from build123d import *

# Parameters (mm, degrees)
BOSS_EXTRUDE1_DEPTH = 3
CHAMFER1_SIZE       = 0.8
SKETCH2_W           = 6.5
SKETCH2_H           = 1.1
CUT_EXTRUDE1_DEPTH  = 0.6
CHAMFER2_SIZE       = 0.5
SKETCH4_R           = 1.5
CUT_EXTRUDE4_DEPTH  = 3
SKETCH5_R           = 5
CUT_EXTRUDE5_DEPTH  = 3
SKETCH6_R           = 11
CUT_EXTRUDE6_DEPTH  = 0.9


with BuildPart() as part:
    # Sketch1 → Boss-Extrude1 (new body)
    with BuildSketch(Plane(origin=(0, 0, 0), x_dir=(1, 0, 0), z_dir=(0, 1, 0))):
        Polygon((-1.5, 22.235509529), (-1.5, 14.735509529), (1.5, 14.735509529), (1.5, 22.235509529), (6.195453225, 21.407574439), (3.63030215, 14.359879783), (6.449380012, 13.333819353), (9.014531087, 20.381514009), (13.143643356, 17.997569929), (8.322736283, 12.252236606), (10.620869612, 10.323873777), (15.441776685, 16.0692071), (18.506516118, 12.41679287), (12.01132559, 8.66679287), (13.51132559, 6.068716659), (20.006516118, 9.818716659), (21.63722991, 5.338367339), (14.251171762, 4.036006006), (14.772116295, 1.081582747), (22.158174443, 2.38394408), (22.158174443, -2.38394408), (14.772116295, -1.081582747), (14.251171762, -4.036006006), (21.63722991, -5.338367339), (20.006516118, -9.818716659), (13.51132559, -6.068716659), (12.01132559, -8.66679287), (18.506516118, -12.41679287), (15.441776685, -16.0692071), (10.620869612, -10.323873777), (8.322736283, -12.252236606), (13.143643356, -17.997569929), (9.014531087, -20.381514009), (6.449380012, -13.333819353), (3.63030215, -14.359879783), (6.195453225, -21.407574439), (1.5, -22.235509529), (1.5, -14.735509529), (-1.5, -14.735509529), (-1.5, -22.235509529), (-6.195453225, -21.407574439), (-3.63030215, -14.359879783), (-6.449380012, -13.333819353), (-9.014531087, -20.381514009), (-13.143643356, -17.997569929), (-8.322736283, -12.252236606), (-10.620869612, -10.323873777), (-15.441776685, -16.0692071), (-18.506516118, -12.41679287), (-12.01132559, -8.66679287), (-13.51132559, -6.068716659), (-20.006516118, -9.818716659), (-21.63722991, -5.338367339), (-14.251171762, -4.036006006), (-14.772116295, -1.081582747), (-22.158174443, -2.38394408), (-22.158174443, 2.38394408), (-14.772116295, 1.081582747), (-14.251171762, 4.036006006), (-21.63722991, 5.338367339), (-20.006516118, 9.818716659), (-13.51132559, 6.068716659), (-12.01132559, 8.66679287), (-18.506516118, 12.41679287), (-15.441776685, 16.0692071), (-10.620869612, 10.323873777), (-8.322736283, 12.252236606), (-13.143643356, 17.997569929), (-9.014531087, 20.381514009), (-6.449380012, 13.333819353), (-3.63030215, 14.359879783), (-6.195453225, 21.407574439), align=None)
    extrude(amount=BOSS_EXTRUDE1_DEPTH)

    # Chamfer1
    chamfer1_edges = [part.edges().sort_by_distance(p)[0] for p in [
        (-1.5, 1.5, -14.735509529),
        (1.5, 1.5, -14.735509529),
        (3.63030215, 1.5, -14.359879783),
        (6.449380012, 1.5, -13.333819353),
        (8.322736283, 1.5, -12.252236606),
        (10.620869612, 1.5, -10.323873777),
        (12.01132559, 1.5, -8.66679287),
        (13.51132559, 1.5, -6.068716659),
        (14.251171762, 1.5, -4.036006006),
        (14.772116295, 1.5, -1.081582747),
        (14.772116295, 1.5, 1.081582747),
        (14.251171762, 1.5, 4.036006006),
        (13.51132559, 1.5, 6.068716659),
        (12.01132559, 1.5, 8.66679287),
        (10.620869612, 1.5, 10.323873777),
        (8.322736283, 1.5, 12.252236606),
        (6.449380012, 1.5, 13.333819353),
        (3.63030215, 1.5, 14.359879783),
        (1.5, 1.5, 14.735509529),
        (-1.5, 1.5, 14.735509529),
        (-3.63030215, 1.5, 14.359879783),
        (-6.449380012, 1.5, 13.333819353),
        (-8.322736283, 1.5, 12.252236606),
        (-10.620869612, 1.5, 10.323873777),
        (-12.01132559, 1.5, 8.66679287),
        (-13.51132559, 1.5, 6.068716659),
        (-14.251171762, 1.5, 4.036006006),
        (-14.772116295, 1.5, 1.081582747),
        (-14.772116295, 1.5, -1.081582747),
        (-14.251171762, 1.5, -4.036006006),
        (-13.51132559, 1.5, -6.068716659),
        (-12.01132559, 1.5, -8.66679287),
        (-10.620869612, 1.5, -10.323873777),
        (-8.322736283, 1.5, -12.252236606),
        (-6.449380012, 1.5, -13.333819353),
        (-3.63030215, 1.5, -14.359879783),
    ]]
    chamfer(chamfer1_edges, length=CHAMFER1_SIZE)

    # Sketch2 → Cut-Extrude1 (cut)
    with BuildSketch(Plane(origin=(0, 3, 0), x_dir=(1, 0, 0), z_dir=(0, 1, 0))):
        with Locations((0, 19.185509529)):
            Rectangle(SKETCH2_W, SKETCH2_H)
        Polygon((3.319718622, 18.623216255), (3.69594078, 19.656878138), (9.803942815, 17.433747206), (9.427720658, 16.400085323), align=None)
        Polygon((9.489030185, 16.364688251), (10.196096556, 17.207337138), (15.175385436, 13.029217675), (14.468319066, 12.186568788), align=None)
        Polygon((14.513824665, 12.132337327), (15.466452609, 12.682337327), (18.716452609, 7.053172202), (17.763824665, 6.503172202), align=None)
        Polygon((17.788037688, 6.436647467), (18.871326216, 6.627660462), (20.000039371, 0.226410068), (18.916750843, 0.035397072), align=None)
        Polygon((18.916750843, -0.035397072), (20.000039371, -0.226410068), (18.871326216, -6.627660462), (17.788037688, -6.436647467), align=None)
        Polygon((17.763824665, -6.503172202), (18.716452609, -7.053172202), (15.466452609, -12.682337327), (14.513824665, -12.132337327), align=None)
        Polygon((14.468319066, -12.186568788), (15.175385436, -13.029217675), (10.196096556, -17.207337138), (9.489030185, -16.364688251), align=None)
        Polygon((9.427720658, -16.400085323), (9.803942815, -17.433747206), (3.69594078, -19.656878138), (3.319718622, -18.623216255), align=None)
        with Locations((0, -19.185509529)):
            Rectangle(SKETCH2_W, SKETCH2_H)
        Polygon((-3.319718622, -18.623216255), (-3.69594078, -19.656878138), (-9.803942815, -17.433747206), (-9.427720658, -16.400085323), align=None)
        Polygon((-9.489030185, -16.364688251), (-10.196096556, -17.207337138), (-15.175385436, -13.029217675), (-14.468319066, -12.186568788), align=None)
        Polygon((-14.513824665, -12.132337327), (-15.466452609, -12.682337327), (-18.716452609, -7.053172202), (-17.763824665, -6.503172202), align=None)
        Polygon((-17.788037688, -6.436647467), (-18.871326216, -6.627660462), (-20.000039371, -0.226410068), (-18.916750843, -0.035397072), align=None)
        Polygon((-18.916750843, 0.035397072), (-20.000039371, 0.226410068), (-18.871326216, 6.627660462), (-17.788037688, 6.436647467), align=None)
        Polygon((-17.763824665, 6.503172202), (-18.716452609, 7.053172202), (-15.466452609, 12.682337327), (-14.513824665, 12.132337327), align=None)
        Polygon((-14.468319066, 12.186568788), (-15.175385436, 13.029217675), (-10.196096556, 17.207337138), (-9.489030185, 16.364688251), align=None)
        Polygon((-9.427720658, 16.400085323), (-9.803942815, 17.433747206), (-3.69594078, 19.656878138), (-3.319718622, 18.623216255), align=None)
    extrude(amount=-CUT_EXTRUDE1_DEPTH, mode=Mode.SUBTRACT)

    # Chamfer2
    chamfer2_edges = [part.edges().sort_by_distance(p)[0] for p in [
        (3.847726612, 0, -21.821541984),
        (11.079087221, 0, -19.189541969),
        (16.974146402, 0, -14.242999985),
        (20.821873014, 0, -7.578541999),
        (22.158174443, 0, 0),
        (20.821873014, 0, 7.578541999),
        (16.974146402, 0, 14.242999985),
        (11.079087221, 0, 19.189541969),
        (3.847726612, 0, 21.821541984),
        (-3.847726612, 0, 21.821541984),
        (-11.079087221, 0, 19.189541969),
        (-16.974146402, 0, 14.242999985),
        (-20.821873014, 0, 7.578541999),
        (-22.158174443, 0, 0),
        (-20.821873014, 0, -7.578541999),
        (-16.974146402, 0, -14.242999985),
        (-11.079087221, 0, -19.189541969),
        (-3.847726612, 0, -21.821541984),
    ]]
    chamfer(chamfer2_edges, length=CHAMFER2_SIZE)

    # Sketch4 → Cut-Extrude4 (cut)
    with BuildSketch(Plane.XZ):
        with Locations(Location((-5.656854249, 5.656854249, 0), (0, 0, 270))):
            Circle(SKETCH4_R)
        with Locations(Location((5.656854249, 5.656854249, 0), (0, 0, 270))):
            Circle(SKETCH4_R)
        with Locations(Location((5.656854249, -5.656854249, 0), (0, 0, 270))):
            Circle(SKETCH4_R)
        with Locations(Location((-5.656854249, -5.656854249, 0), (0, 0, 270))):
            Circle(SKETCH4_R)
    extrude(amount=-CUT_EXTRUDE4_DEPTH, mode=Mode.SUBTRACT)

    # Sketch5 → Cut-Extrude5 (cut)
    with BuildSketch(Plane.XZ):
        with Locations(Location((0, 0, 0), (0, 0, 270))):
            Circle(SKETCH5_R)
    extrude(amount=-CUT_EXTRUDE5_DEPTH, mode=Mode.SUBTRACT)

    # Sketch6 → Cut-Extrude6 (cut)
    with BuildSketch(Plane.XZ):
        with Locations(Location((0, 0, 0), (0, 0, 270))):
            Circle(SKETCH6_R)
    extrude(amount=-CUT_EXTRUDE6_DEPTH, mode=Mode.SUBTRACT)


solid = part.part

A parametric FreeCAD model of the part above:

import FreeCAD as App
import Part
import Sketcher
Q = App.Units.Quantity


def edges_at(feature, points):
    """Names of the edges that pass closest to the given points."""
    edges = feature.Shape.Edges
    near = lambda p: min(range(len(edges)), key=lambda i: edges[i].distToShape(Part.Vertex(*p))[0])
    return sorted({f"Edge{near(p) + 1}" for p in points})

doc = App.newDocument("Part")
body = doc.addObject("PartDesign::Body", "Body")

# Sketch on XZ plane
sketch1 = body.newObject("Sketcher::SketchObject", "Sketch")
sketch1.AttachmentSupport = (doc.getObject("XZ_Plane"), [""])
sketch1.MapMode = "FlatFace"
sketch1.addGeometry(Part.LineSegment(App.Vector(-1.5, -14.73551, 0), App.Vector(-1.5, -22.23551, 0)), False)
sketch1.addGeometry(Part.LineSegment(App.Vector(-1.5, -22.23551, 0), App.Vector(-6.195453, -21.407574, 0)), False)
sketch1.addGeometry(Part.LineSegment(App.Vector(-6.195453, -21.407574, 0), App.Vector(-3.630302, -14.35988, 0)), False)
sketch1.addGeometry(Part.LineSegment(App.Vector(-3.630302, -14.35988, 0), App.Vector(-6.44938, -13.333819, 0)), False)
sketch1.addGeometry(Part.LineSegment(App.Vector(-6.44938, -13.333819, 0), App.Vector(-9.014531, -20.381514, 0)), False)
sketch1.addGeometry(Part.LineSegment(App.Vector(-9.014531, -20.381514, 0), App.Vector(-13.143643, -17.99757, 0)), False)
sketch1.addGeometry(Part.LineSegment(App.Vector(-13.143643, -17.99757, 0), App.Vector(-8.322736, -12.252237, 0)), False)
sketch1.addGeometry(Part.LineSegment(App.Vector(-8.322736, -12.252237, 0), App.Vector(-10.62087, -10.323874, 0)), False)
sketch1.addGeometry(Part.LineSegment(App.Vector(-10.62087, -10.323874, 0), App.Vector(-15.441777, -16.069207, 0)), False)
sketch1.addGeometry(Part.LineSegment(App.Vector(-15.441777, -16.069207, 0), App.Vector(-18.506516, -12.416793, 0)), False)
sketch1.addGeometry(Part.LineSegment(App.Vector(-18.506516, -12.416793, 0), App.Vector(-12.011326, -8.666793, 0)), False)
sketch1.addGeometry(Part.LineSegment(App.Vector(-12.011326, -8.666793, 0), App.Vector(-13.511326, -6.068717, 0)), False)
sketch1.addGeometry(Part.LineSegment(App.Vector(-13.511326, -6.068717, 0), App.Vector(-20.006516, -9.818717, 0)), False)
sketch1.addGeometry(Part.LineSegment(App.Vector(-20.006516, -9.818717, 0), App.Vector(-21.63723, -5.338367, 0)), False)
sketch1.addGeometry(Part.LineSegment(App.Vector(-21.63723, -5.338367, 0), App.Vector(-14.251172, -4.036006, 0)), False)
sketch1.addGeometry(Part.LineSegment(App.Vector(-14.251172, -4.036006, 0), App.Vector(-14.772116, -1.081583, 0)), False)
sketch1.addGeometry(Part.LineSegment(App.Vector(-14.772116, -1.081583, 0), App.Vector(-22.158174, -2.383944, 0)), False)
sketch1.addGeometry(Part.LineSegment(App.Vector(-22.158174, -2.383944, 0), App.Vector(-22.158174, 2.383944, 0)), False)
sketch1.addGeometry(Part.LineSegment(App.Vector(-22.158174, 2.383944, 0), App.Vector(-14.772116, 1.081583, 0)), False)
sketch1.addGeometry(Part.LineSegment(App.Vector(-14.772116, 1.081583, 0), App.Vector(-14.251172, 4.036006, 0)), False)
sketch1.addGeometry(Part.LineSegment(App.Vector(-14.251172, 4.036006, 0), App.Vector(-21.63723, 5.338367, 0)), False)
sketch1.addGeometry(Part.LineSegment(App.Vector(-21.63723, 5.338367, 0), App.Vector(-20.006516, 9.818717, 0)), False)
sketch1.addGeometry(Part.LineSegment(App.Vector(-20.006516, 9.818717, 0), App.Vector(-13.511326, 6.068717, 0)), False)
sketch1.addGeometry(Part.LineSegment(App.Vector(-13.511326, 6.068717, 0), App.Vector(-12.011326, 8.666793, 0)), False)
sketch1.addGeometry(Part.LineSegment(App.Vector(-12.011326, 8.666793, 0), App.Vector(-18.506516, 12.416793, 0)), False)
sketch1.addGeometry(Part.LineSegment(App.Vector(-18.506516, 12.416793, 0), App.Vector(-15.441777, 16.069207, 0)), False)
sketch1.addGeometry(Part.LineSegment(App.Vector(-15.441777, 16.069207, 0), App.Vector(-10.62087, 10.323874, 0)), False)
sketch1.addGeometry(Part.LineSegment(App.Vector(-10.62087, 10.323874, 0), App.Vector(-8.322736, 12.252237, 0)), False)
sketch1.addGeometry(Part.LineSegment(App.Vector(-8.322736, 12.252237, 0), App.Vector(-13.143643, 17.99757, 0)), False)
sketch1.addGeometry(Part.LineSegment(App.Vector(-13.143643, 17.99757, 0), App.Vector(-9.014531, 20.381514, 0)), False)
sketch1.addGeometry(Part.LineSegment(App.Vector(-9.014531, 20.381514, 0), App.Vector(-6.44938, 13.333819, 0)), False)
sketch1.addGeometry(Part.LineSegment(App.Vector(-6.44938, 13.333819, 0), App.Vector(-3.630302, 14.35988, 0)), False)
sketch1.addGeometry(Part.LineSegment(App.Vector(-3.630302, 14.35988, 0), App.Vector(-6.195453, 21.407574, 0)), False)
sketch1.addGeometry(Part.LineSegment(App.Vector(-6.195453, 21.407574, 0), App.Vector(-1.5, 22.23551, 0)), False)
sketch1.addGeometry(Part.LineSegment(App.Vector(-1.5, 22.23551, 0), App.Vector(-1.5, 14.73551, 0)), False)
sketch1.addGeometry(Part.LineSegment(App.Vector(-1.5, 14.73551, 0), App.Vector(1.5, 14.73551, 0)), False)
sketch1.addGeometry(Part.LineSegment(App.Vector(1.5, 14.73551, 0), App.Vector(1.5, 22.23551, 0)), False)
sketch1.addGeometry(Part.LineSegment(App.Vector(1.5, 22.23551, 0), App.Vector(6.195453, 21.407574, 0)), False)
sketch1.addGeometry(Part.LineSegment(App.Vector(6.195453, 21.407574, 0), App.Vector(3.630302, 14.35988, 0)), False)
sketch1.addGeometry(Part.LineSegment(App.Vector(3.630302, 14.35988, 0), App.Vector(6.44938, 13.333819, 0)), False)
sketch1.addGeometry(Part.LineSegment(App.Vector(6.44938, 13.333819, 0), App.Vector(9.014531, 20.381514, 0)), False)
sketch1.addGeometry(Part.LineSegment(App.Vector(9.014531, 20.381514, 0), App.Vector(13.143643, 17.99757, 0)), False)
sketch1.addGeometry(Part.LineSegment(App.Vector(13.143643, 17.99757, 0), App.Vector(8.322736, 12.252237, 0)), False)
sketch1.addGeometry(Part.LineSegment(App.Vector(8.322736, 12.252237, 0), App.Vector(10.62087, 10.323874, 0)), False)
sketch1.addGeometry(Part.LineSegment(App.Vector(10.62087, 10.323874, 0), App.Vector(15.441777, 16.069207, 0)), False)
sketch1.addGeometry(Part.LineSegment(App.Vector(15.441777, 16.069207, 0), App.Vector(18.506516, 12.416793, 0)), False)
sketch1.addGeometry(Part.LineSegment(App.Vector(18.506516, 12.416793, 0), App.Vector(12.011326, 8.666793, 0)), False)
sketch1.addGeometry(Part.LineSegment(App.Vector(12.011326, 8.666793, 0), App.Vector(13.511326, 6.068717, 0)), False)
sketch1.addGeometry(Part.LineSegment(App.Vector(13.511326, 6.068717, 0), App.Vector(20.006516, 9.818717, 0)), False)
sketch1.addGeometry(Part.LineSegment(App.Vector(20.006516, 9.818717, 0), App.Vector(21.63723, 5.338367, 0)), False)
sketch1.addGeometry(Part.LineSegment(App.Vector(21.63723, 5.338367, 0), App.Vector(14.251172, 4.036006, 0)), False)
sketch1.addGeometry(Part.LineSegment(App.Vector(14.251172, 4.036006, 0), App.Vector(14.772116, 1.081583, 0)), False)
sketch1.addGeometry(Part.LineSegment(App.Vector(14.772116, 1.081583, 0), App.Vector(22.158174, 2.383944, 0)), False)
sketch1.addGeometry(Part.LineSegment(App.Vector(22.158174, 2.383944, 0), App.Vector(22.158174, -2.383944, 0)), False)
sketch1.addGeometry(Part.LineSegment(App.Vector(22.158174, -2.383944, 0), App.Vector(14.772116, -1.081583, 0)), False)
sketch1.addGeometry(Part.LineSegment(App.Vector(14.772116, -1.081583, 0), App.Vector(14.251172, -4.036006, 0)), False)
sketch1.addGeometry(Part.LineSegment(App.Vector(14.251172, -4.036006, 0), App.Vector(21.63723, -5.338367, 0)), False)
sketch1.addGeometry(Part.LineSegment(App.Vector(21.63723, -5.338367, 0), App.Vector(20.006516, -9.818717, 0)), False)
sketch1.addGeometry(Part.LineSegment(App.Vector(20.006516, -9.818717, 0), App.Vector(13.511326, -6.068717, 0)), False)
sketch1.addGeometry(Part.LineSegment(App.Vector(13.511326, -6.068717, 0), App.Vector(12.011326, -8.666793, 0)), False)
sketch1.addGeometry(Part.LineSegment(App.Vector(12.011326, -8.666793, 0), App.Vector(18.506516, -12.416793, 0)), False)
sketch1.addGeometry(Part.LineSegment(App.Vector(18.506516, -12.416793, 0), App.Vector(15.441777, -16.069207, 0)), False)
sketch1.addGeometry(Part.LineSegment(App.Vector(15.441777, -16.069207, 0), App.Vector(10.62087, -10.323874, 0)), False)
sketch1.addGeometry(Part.LineSegment(App.Vector(10.62087, -10.323874, 0), App.Vector(8.322736, -12.252237, 0)), False)
sketch1.addGeometry(Part.LineSegment(App.Vector(8.322736, -12.252237, 0), App.Vector(13.143643, -17.99757, 0)), False)
sketch1.addGeometry(Part.LineSegment(App.Vector(13.143643, -17.99757, 0), App.Vector(9.014531, -20.381514, 0)), False)
sketch1.addGeometry(Part.LineSegment(App.Vector(9.014531, -20.381514, 0), App.Vector(6.44938, -13.333819, 0)), False)
sketch1.addGeometry(Part.LineSegment(App.Vector(6.44938, -13.333819, 0), App.Vector(3.630302, -14.35988, 0)), False)
sketch1.addGeometry(Part.LineSegment(App.Vector(3.630302, -14.35988, 0), App.Vector(6.195453, -21.407574, 0)), False)
sketch1.addGeometry(Part.LineSegment(App.Vector(6.195453, -21.407574, 0), App.Vector(1.5, -22.23551, 0)), False)
sketch1.addGeometry(Part.LineSegment(App.Vector(1.5, -22.23551, 0), App.Vector(1.5, -14.73551, 0)), False)
sketch1.addGeometry(Part.LineSegment(App.Vector(1.5, -14.73551, 0), App.Vector(-1.5, -14.73551, 0)), False)
sketch1.addConstraint(Sketcher.Constraint("Coincident", 0, 2, 1, 1))
sketch1.addConstraint(Sketcher.Constraint("Coincident", 1, 2, 2, 1))
sketch1.addConstraint(Sketcher.Constraint("Coincident", 2, 2, 3, 1))
sketch1.addConstraint(Sketcher.Constraint("Coincident", 3, 2, 4, 1))
sketch1.addConstraint(Sketcher.Constraint("Coincident", 4, 2, 5, 1))
sketch1.addConstraint(Sketcher.Constraint("Coincident", 5, 2, 6, 1))
sketch1.addConstraint(Sketcher.Constraint("Coincident", 6, 2, 7, 1))
sketch1.addConstraint(Sketcher.Constraint("Coincident", 7, 2, 8, 1))
sketch1.addConstraint(Sketcher.Constraint("Coincident", 8, 2, 9, 1))
sketch1.addConstraint(Sketcher.Constraint("Coincident", 9, 2, 10, 1))
sketch1.addConstraint(Sketcher.Constraint("Coincident", 10, 2, 11, 1))
sketch1.addConstraint(Sketcher.Constraint("Coincident", 11, 2, 12, 1))
sketch1.addConstraint(Sketcher.Constraint("Coincident", 12, 2, 13, 1))
sketch1.addConstraint(Sketcher.Constraint("Coincident", 13, 2, 14, 1))
sketch1.addConstraint(Sketcher.Constraint("Coincident", 14, 2, 15, 1))
sketch1.addConstraint(Sketcher.Constraint("Coincident", 15, 2, 16, 1))
sketch1.addConstraint(Sketcher.Constraint("Coincident", 16, 2, 17, 1))
sketch1.addConstraint(Sketcher.Constraint("Coincident", 17, 2, 18, 1))
sketch1.addConstraint(Sketcher.Constraint("Coincident", 18, 2, 19, 1))
sketch1.addConstraint(Sketcher.Constraint("Coincident", 19, 2, 20, 1))
sketch1.addConstraint(Sketcher.Constraint("Coincident", 20, 2, 21, 1))
sketch1.addConstraint(Sketcher.Constraint("Coincident", 21, 2, 22, 1))
sketch1.addConstraint(Sketcher.Constraint("Coincident", 22, 2, 23, 1))
sketch1.addConstraint(Sketcher.Constraint("Coincident", 23, 2, 24, 1))
sketch1.addConstraint(Sketcher.Constraint("Coincident", 24, 2, 25, 1))
sketch1.addConstraint(Sketcher.Constraint("Coincident", 25, 2, 26, 1))
sketch1.addConstraint(Sketcher.Constraint("Coincident", 26, 2, 27, 1))
sketch1.addConstraint(Sketcher.Constraint("Coincident", 27, 2, 28, 1))
sketch1.addConstraint(Sketcher.Constraint("Coincident", 28, 2, 29, 1))
sketch1.addConstraint(Sketcher.Constraint("Coincident", 29, 2, 30, 1))
sketch1.addConstraint(Sketcher.Constraint("Coincident", 30, 2, 31, 1))
sketch1.addConstraint(Sketcher.Constraint("Coincident", 31, 2, 32, 1))
sketch1.addConstraint(Sketcher.Constraint("Coincident", 32, 2, 33, 1))
sketch1.addConstraint(Sketcher.Constraint("Coincident", 33, 2, 34, 1))
sketch1.addConstraint(Sketcher.Constraint("Coincident", 34, 2, 35, 1))
sketch1.addConstraint(Sketcher.Constraint("Coincident", 35, 2, 36, 1))
sketch1.addConstraint(Sketcher.Constraint("Coincident", 36, 2, 37, 1))
sketch1.addConstraint(Sketcher.Constraint("Coincident", 37, 2, 38, 1))
sketch1.addConstraint(Sketcher.Constraint("Coincident", 38, 2, 39, 1))
sketch1.addConstraint(Sketcher.Constraint("Coincident", 39, 2, 40, 1))
sketch1.addConstraint(Sketcher.Constraint("Coincident", 40, 2, 41, 1))
sketch1.addConstraint(Sketcher.Constraint("Coincident", 41, 2, 42, 1))
sketch1.addConstraint(Sketcher.Constraint("Coincident", 42, 2, 43, 1))
sketch1.addConstraint(Sketcher.Constraint("Coincident", 43, 2, 44, 1))
sketch1.addConstraint(Sketcher.Constraint("Coincident", 44, 2, 45, 1))
sketch1.addConstraint(Sketcher.Constraint("Coincident", 45, 2, 46, 1))
sketch1.addConstraint(Sketcher.Constraint("Coincident", 46, 2, 47, 1))
sketch1.addConstraint(Sketcher.Constraint("Coincident", 47, 2, 48, 1))
sketch1.addConstraint(Sketcher.Constraint("Coincident", 48, 2, 49, 1))
sketch1.addConstraint(Sketcher.Constraint("Coincident", 49, 2, 50, 1))
sketch1.addConstraint(Sketcher.Constraint("Coincident", 50, 2, 51, 1))
sketch1.addConstraint(Sketcher.Constraint("Coincident", 51, 2, 52, 1))
sketch1.addConstraint(Sketcher.Constraint("Coincident", 52, 2, 53, 1))
sketch1.addConstraint(Sketcher.Constraint("Coincident", 53, 2, 54, 1))
sketch1.addConstraint(Sketcher.Constraint("Coincident", 54, 2, 55, 1))
sketch1.addConstraint(Sketcher.Constraint("Coincident", 55, 2, 56, 1))
sketch1.addConstraint(Sketcher.Constraint("Coincident", 56, 2, 57, 1))
sketch1.addConstraint(Sketcher.Constraint("Coincident", 57, 2, 58, 1))
sketch1.addConstraint(Sketcher.Constraint("Coincident", 58, 2, 59, 1))
sketch1.addConstraint(Sketcher.Constraint("Coincident", 59, 2, 60, 1))
sketch1.addConstraint(Sketcher.Constraint("Coincident", 60, 2, 61, 1))
sketch1.addConstraint(Sketcher.Constraint("Coincident", 61, 2, 62, 1))
sketch1.addConstraint(Sketcher.Constraint("Coincident", 62, 2, 63, 1))
sketch1.addConstraint(Sketcher.Constraint("Coincident", 63, 2, 64, 1))
sketch1.addConstraint(Sketcher.Constraint("Coincident", 64, 2, 65, 1))
sketch1.addConstraint(Sketcher.Constraint("Coincident", 65, 2, 66, 1))
sketch1.addConstraint(Sketcher.Constraint("Coincident", 66, 2, 67, 1))
sketch1.addConstraint(Sketcher.Constraint("Coincident", 67, 2, 68, 1))
sketch1.addConstraint(Sketcher.Constraint("Coincident", 68, 2, 69, 1))
sketch1.addConstraint(Sketcher.Constraint("Coincident", 69, 2, 70, 1))
sketch1.addConstraint(Sketcher.Constraint("Coincident", 70, 2, 71, 1))
sketch1.addConstraint(Sketcher.Constraint("Coincident", 71, 2, 0, 1))
sketch1.addConstraint(Sketcher.Constraint("Vertical", 0))
sketch1.addConstraint(Sketcher.Constraint("Vertical", 17))
sketch1.addConstraint(Sketcher.Constraint("Vertical", 34))
sketch1.addConstraint(Sketcher.Constraint("Horizontal", 35))
sketch1.addConstraint(Sketcher.Constraint("Vertical", 36))
sketch1.addConstraint(Sketcher.Constraint("Vertical", 53))
sketch1.addConstraint(Sketcher.Constraint("Vertical", 70))
sketch1.addConstraint(Sketcher.Constraint("Horizontal", 71))
sketch1.addConstraint(Sketcher.Constraint("Symmetric", 0, 2, 36, 2, -1, 1))
sketch1.addConstraint(Sketcher.Constraint("Symmetric", 1, 2, 37, 2, -1, 1))
sketch1.addConstraint(Sketcher.Constraint("Symmetric", 2, 2, 38, 2, -1, 1))
sketch1.addConstraint(Sketcher.Constraint("Symmetric", 3, 2, 39, 2, -1, 1))
sketch1.addConstraint(Sketcher.Constraint("Symmetric", 4, 2, 40, 2, -1, 1))
sketch1.addConstraint(Sketcher.Constraint("Symmetric", 5, 2, 41, 2, -1, 1))
sketch1.addConstraint(Sketcher.Constraint("Symmetric", 6, 2, 42, 2, -1, 1))
sketch1.addConstraint(Sketcher.Constraint("Symmetric", 7, 2, 43, 2, -1, 1))
sketch1.addConstraint(Sketcher.Constraint("Symmetric", 8, 2, 44, 2, -1, 1))
sketch1.addConstraint(Sketcher.Constraint("Symmetric", 9, 2, 45, 2, -1, 1))
sketch1.addConstraint(Sketcher.Constraint("Symmetric", 10, 2, 46, 2, -1, 1))
sketch1.addConstraint(Sketcher.Constraint("Symmetric", 11, 2, 47, 2, -1, 1))
sketch1.addConstraint(Sketcher.Constraint("Symmetric", 12, 2, 48, 2, -1, 1))
sketch1.addConstraint(Sketcher.Constraint("Symmetric", 13, 2, 49, 2, -1, 1))
sketch1.addConstraint(Sketcher.Constraint("Symmetric", 14, 2, 50, 2, -1, 1))
sketch1.addConstraint(Sketcher.Constraint("Symmetric", 15, 2, 51, 2, -1, 1))
sketch1.addConstraint(Sketcher.Constraint("Symmetric", 16, 2, 52, 2, -1, 1))
sketch1.addConstraint(Sketcher.Constraint("Symmetric", 18, 2, 54, 2, -1, 1))
sketch1.addConstraint(Sketcher.Constraint("Symmetric", 19, 2, 55, 2, -1, 1))
sketch1.addConstraint(Sketcher.Constraint("Symmetric", 20, 2, 56, 2, -1, 1))
sketch1.addConstraint(Sketcher.Constraint("Symmetric", 21, 2, 57, 2, -1, 1))
sketch1.addConstraint(Sketcher.Constraint("Symmetric", 22, 2, 58, 2, -1, 1))
sketch1.addConstraint(Sketcher.Constraint("Symmetric", 23, 2, 59, 2, -1, 1))
sketch1.addConstraint(Sketcher.Constraint("Symmetric", 24, 2, 60, 2, -1, 1))
sketch1.addConstraint(Sketcher.Constraint("Symmetric", 25, 2, 61, 2, -1, 1))
sketch1.addConstraint(Sketcher.Constraint("Symmetric", 26, 2, 62, 2, -1, 1))
sketch1.addConstraint(Sketcher.Constraint("Symmetric", 27, 2, 63, 2, -1, 1))
sketch1.addConstraint(Sketcher.Constraint("Symmetric", 28, 2, 64, 2, -1, 1))
sketch1.addConstraint(Sketcher.Constraint("Symmetric", 29, 2, 65, 2, -1, 1))
sketch1.addConstraint(Sketcher.Constraint("Symmetric", 30, 2, 66, 2, -1, 1))
sketch1.addConstraint(Sketcher.Constraint("Symmetric", 31, 2, 67, 2, -1, 1))
sketch1.addConstraint(Sketcher.Constraint("Symmetric", 32, 2, 68, 2, -1, 1))
sketch1.addConstraint(Sketcher.Constraint("Symmetric", 33, 2, 69, 2, -1, 1))
sketch1.addConstraint(Sketcher.Constraint("Symmetric", 33, 2, 36, 2, -2))
sketch1.addConstraint(Sketcher.Constraint("Symmetric", 32, 2, 37, 2, -2))
sketch1.addConstraint(Sketcher.Constraint("Symmetric", 31, 2, 38, 2, -2))
sketch1.addConstraint(Sketcher.Constraint("Symmetric", 30, 2, 39, 2, -2))
sketch1.addConstraint(Sketcher.Constraint("Symmetric", 29, 2, 40, 2, -2))
sketch1.addConstraint(Sketcher.Constraint("Symmetric", 28, 2, 41, 2, -2))
sketch1.addConstraint(Sketcher.Constraint("Symmetric", 27, 2, 42, 2, -2))
sketch1.addConstraint(Sketcher.Constraint("Symmetric", 26, 2, 43, 2, -2))
sketch1.addConstraint(Sketcher.Constraint("Symmetric", 25, 2, 44, 2, -2))
sketch1.addConstraint(Sketcher.Constraint("Symmetric", 24, 2, 45, 2, -2))
sketch1.addConstraint(Sketcher.Constraint("Symmetric", 23, 2, 46, 2, -2))
sketch1.addConstraint(Sketcher.Constraint("Symmetric", 22, 2, 47, 2, -2))
sketch1.addConstraint(Sketcher.Constraint("Symmetric", 21, 2, 48, 2, -2))
sketch1.addConstraint(Sketcher.Constraint("Symmetric", 20, 2, 49, 2, -2))
sketch1.addConstraint(Sketcher.Constraint("Symmetric", 19, 2, 50, 2, -2))
sketch1.addConstraint(Sketcher.Constraint("Symmetric", 18, 2, 51, 2, -2))
sketch1.addConstraint(Sketcher.Constraint("Perpendicular", 2, 3))
sketch1.addConstraint(Sketcher.Constraint("Perpendicular", 3, 4))
sketch1.addConstraint(Sketcher.Constraint("Perpendicular", 6, 7))
sketch1.addConstraint(Sketcher.Constraint("Perpendicular", 7, 8))
sketch1.addConstraint(Sketcher.Constraint("Perpendicular", 10, 11))
sketch1.addConstraint(Sketcher.Constraint("Perpendicular", 11, 12))
sketch1.addConstraint(Sketcher.Constraint("Perpendicular", 14, 15))
sketch1.addConstraint(Sketcher.Constraint("Perpendicular", 15, 16))
sketch1.addConstraint(Sketcher.Constraint("Parallel", 1, 18))
sketch1.addConstraint(Sketcher.Constraint("Perpendicular", 18, 19))
sketch1.addConstraint(Sketcher.Constraint("Parallel", 4, 21))
sketch1.addConstraint(Sketcher.Constraint("Parallel", 5, 22))
sketch1.addConstraint(Sketcher.Constraint("Parallel", 8, 25))
sketch1.addConstraint(Sketcher.Constraint("Parallel", 37, 54))
sketch1.addConstraint(Sketcher.Constraint("Equal", 0, 34))
sketch1.addConstraint(Sketcher.Constraint("Equal", 2, 4))
sketch1.addConstraint(Sketcher.Constraint("Equal", 1, 5))
sketch1.addConstraint(Sketcher.Constraint("Equal", 4, 6))
sketch1.addConstraint(Sketcher.Constraint("Equal", 3, 7))
sketch1.addConstraint(Sketcher.Constraint("Equal", 6, 8))
sketch1.addConstraint(Sketcher.Constraint("Equal", 5, 9))
sketch1.addConstraint(Sketcher.Constraint("Equal", 8, 10))
sketch1.addConstraint(Sketcher.Constraint("Equal", 7, 11))
sketch1.addConstraint(Sketcher.Constraint("Equal", 10, 12))
sketch1.addConstraint(Sketcher.Constraint("Equal", 9, 13))
sketch1.addConstraint(Sketcher.Constraint("Equal", 12, 14))
sketch1.addConstraint(Sketcher.Constraint("Equal", 11, 15))
sketch1.addConstraint(Sketcher.Constraint("Equal", 14, 16))
sketch1.addConstraint(Sketcher.Constraint("DistanceX", 35, 1, 35, 2, Q("3 mm")))
sketch1.addConstraint(Sketcher.Constraint("Angle", 1, Q("170 deg")))
sketch1.addConstraint(Sketcher.Constraint("Angle", 2, Q("70 deg")))
sketch1.addConstraint(Sketcher.Constraint("Angle", 5, Q("150 deg")))
sketch1.addConstraint(Sketcher.Constraint("Angle", 6, Q("50 deg")))
sketch1.addConstraint(Sketcher.Constraint("Distance", 3, Q("3 mm")))
sketch1.addConstraint(Sketcher.Constraint("DistanceY", 0, 2, 0, 1, Q("7.5 mm")))
sketch1.addConstraint(Sketcher.Constraint("Distance", 2, Q("7.5 mm")))
sketch1.addConstraint(Sketcher.Constraint("DistanceY", 17, 1, 17, 2, Q("4.767888 mm")))
sketch1.addConstraint(Sketcher.Constraint("Distance", 1, Q("4.767888 mm")))
pad1 = body.newObject("PartDesign::Pad", "Pad")
pad1.Profile = sketch1
pad1.Length = 3
pad1.Reversed = True
doc.recompute()

chamfer = body.newObject("PartDesign::Chamfer", "Chamfer")
chamfer.Base = (pad1, edges_at(pad1, [
    (-1.5, 1.5, -14.736),
    (1.5, 1.5, -14.736),
    (3.63, 1.5, -14.36),
    (6.449, 1.5, -13.334),
    (8.323, 1.5, -12.252),
    (10.621, 1.5, -10.324),
    (12.011, 1.5, -8.667),
    (13.511, 1.5, -6.069),
    (14.251, 1.5, -4.036),
    (14.772, 1.5, -1.082),
    (14.772, 1.5, 1.082),
    (14.251, 1.5, 4.036),
    (13.511, 1.5, 6.069),
    (12.011, 1.5, 8.667),
    (10.621, 1.5, 10.324),
    (8.323, 1.5, 12.252),
    (6.449, 1.5, 13.334),
    (3.63, 1.5, 14.36),
    (1.5, 1.5, 14.736),
    (-1.5, 1.5, 14.736),
    (-3.63, 1.5, 14.36),
    (-6.449, 1.5, 13.334),
    (-8.323, 1.5, 12.252),
    (-10.621, 1.5, 10.324),
    (-12.011, 1.5, 8.667),
    (-13.511, 1.5, 6.069),
    (-14.251, 1.5, 4.036),
    (-14.772, 1.5, 1.082),
    (-14.772, 1.5, -1.082),
    (-14.251, 1.5, -4.036),
    (-13.511, 1.5, -6.069),
    (-12.011, 1.5, -8.667),
    (-10.621, 1.5, -10.324),
    (-8.323, 1.5, -12.252),
    (-6.449, 1.5, -13.334),
    (-3.63, 1.5, -14.36),
]))
chamfer.Size = 0.8

# Sketch on XZ plane
sketch2 = body.newObject("Sketcher::SketchObject", "Sketch001")
sketch2.AttachmentSupport = (doc.getObject("XZ_Plane"), [""])
sketch2.MapMode = "FlatFace"
sketch2.AttachmentOffset = App.Placement(App.Vector(0, 0, -3), App.Rotation())
sketch2.addGeometry(Part.LineSegment(App.Vector(-3.25, -19.73551, 0), App.Vector(-3.25, -18.63551, 0)), False)
sketch2.addGeometry(Part.LineSegment(App.Vector(-3.25, -18.63551, 0), App.Vector(3.25, -18.63551, 0)), False)
sketch2.addGeometry(Part.LineSegment(App.Vector(3.25, -18.63551, 0), App.Vector(3.25, -19.73551, 0)), False)
sketch2.addGeometry(Part.LineSegment(App.Vector(3.25, -19.73551, 0), App.Vector(-3.25, -19.73551, 0)), False)
sketch2.addGeometry(Part.LineSegment(App.Vector(3.695941, -19.656878, 0), App.Vector(3.319719, -18.623216, 0)), False)
sketch2.addGeometry(Part.LineSegment(App.Vector(3.319719, -18.623216, 0), App.Vector(9.427721, -16.400085, 0)), False)
sketch2.addGeometry(Part.LineSegment(App.Vector(9.427721, -16.400085, 0), App.Vector(9.803943, -17.433747, 0)), False)
sketch2.addGeometry(Part.LineSegment(App.Vector(9.803943, -17.433747, 0), App.Vector(3.695941, -19.656878, 0)), False)
sketch2.addGeometry(Part.LineSegment(App.Vector(10.196097, -17.207337, 0), App.Vector(9.48903, -16.364688, 0)), False)
sketch2.addGeometry(Part.LineSegment(App.Vector(9.48903, -16.364688, 0), App.Vector(14.468319, -12.186569, 0)), False)
sketch2.addGeometry(Part.LineSegment(App.Vector(14.468319, -12.186569, 0), App.Vector(15.175385, -13.029218, 0)), False)
sketch2.addGeometry(Part.LineSegment(App.Vector(15.175385, -13.029218, 0), App.Vector(10.196097, -17.207337, 0)), False)
sketch2.addGeometry(Part.LineSegment(App.Vector(15.466453, -12.682337, 0), App.Vector(14.513825, -12.132337, 0)), False)
sketch2.addGeometry(Part.LineSegment(App.Vector(14.513825, -12.132337, 0), App.Vector(17.763825, -6.503172, 0)), False)
sketch2.addGeometry(Part.LineSegment(App.Vector(17.763825, -6.503172, 0), App.Vector(18.716453, -7.053172, 0)), False)
sketch2.addGeometry(Part.LineSegment(App.Vector(18.716453, -7.053172, 0), App.Vector(15.466453, -12.682337, 0)), False)
sketch2.addGeometry(Part.LineSegment(App.Vector(18.871326, -6.62766, 0), App.Vector(17.788038, -6.436647, 0)), False)
sketch2.addGeometry(Part.LineSegment(App.Vector(17.788038, -6.436647, 0), App.Vector(18.916751, -0.035397, 0)), False)
sketch2.addGeometry(Part.LineSegment(App.Vector(18.916751, -0.035397, 0), App.Vector(20.000039, -0.22641, 0)), False)
sketch2.addGeometry(Part.LineSegment(App.Vector(20.000039, -0.22641, 0), App.Vector(18.871326, -6.62766, 0)), False)
sketch2.addGeometry(Part.LineSegment(App.Vector(20.000039, 0.22641, 0), App.Vector(18.916751, 0.035397, 0)), False)
sketch2.addGeometry(Part.LineSegment(App.Vector(18.916751, 0.035397, 0), App.Vector(17.788038, 6.436647, 0)), False)
sketch2.addGeometry(Part.LineSegment(App.Vector(17.788038, 6.436647, 0), App.Vector(18.871326, 6.62766, 0)), False)
sketch2.addGeometry(Part.LineSegment(App.Vector(18.871326, 6.62766, 0), App.Vector(20.000039, 0.22641, 0)), False)
sketch2.addGeometry(Part.LineSegment(App.Vector(18.716453, 7.053172, 0), App.Vector(17.763825, 6.503172, 0)), False)
sketch2.addGeometry(Part.LineSegment(App.Vector(17.763825, 6.503172, 0), App.Vector(14.513825, 12.132337, 0)), False)
sketch2.addGeometry(Part.LineSegment(App.Vector(14.513825, 12.132337, 0), App.Vector(15.466453, 12.682337, 0)), False)
sketch2.addGeometry(Part.LineSegment(App.Vector(15.466453, 12.682337, 0), App.Vector(18.716453, 7.053172, 0)), False)
sketch2.addGeometry(Part.LineSegment(App.Vector(15.175385, 13.029218, 0), App.Vector(14.468319, 12.186569, 0)), False)
sketch2.addGeometry(Part.LineSegment(App.Vector(14.468319, 12.186569, 0), App.Vector(9.48903, 16.364688, 0)), False)
sketch2.addGeometry(Part.LineSegment(App.Vector(9.48903, 16.364688, 0), App.Vector(10.196097, 17.207337, 0)), False)
sketch2.addGeometry(Part.LineSegment(App.Vector(10.196097, 17.207337, 0), App.Vector(15.175385, 13.029218, 0)), False)
sketch2.addGeometry(Part.LineSegment(App.Vector(9.803943, 17.433747, 0), App.Vector(9.427721, 16.400085, 0)), False)
sketch2.addGeometry(Part.LineSegment(App.Vector(9.427721, 16.400085, 0), App.Vector(3.319719, 18.623216, 0)), False)
sketch2.addGeometry(Part.LineSegment(App.Vector(3.319719, 18.623216, 0), App.Vector(3.695941, 19.656878, 0)), False)
sketch2.addGeometry(Part.LineSegment(App.Vector(3.695941, 19.656878, 0), App.Vector(9.803943, 17.433747, 0)), False)
sketch2.addGeometry(Part.LineSegment(App.Vector(-3.25, 18.63551, 0), App.Vector(-3.25, 19.73551, 0)), False)
sketch2.addGeometry(Part.LineSegment(App.Vector(-3.25, 19.73551, 0), App.Vector(3.25, 19.73551, 0)), False)
sketch2.addGeometry(Part.LineSegment(App.Vector(3.25, 19.73551, 0), App.Vector(3.25, 18.63551, 0)), False)
sketch2.addGeometry(Part.LineSegment(App.Vector(3.25, 18.63551, 0), App.Vector(-3.25, 18.63551, 0)), False)
sketch2.addGeometry(Part.LineSegment(App.Vector(-3.695941, 19.656878, 0), App.Vector(-3.319719, 18.623216, 0)), False)
sketch2.addGeometry(Part.LineSegment(App.Vector(-3.319719, 18.623216, 0), App.Vector(-9.427721, 16.400085, 0)), False)
sketch2.addGeometry(Part.LineSegment(App.Vector(-9.427721, 16.400085, 0), App.Vector(-9.803943, 17.433747, 0)), False)
sketch2.addGeometry(Part.LineSegment(App.Vector(-9.803943, 17.433747, 0), App.Vector(-3.695941, 19.656878, 0)), False)
sketch2.addGeometry(Part.LineSegment(App.Vector(-10.196097, 17.207337, 0), App.Vector(-9.48903, 16.364688, 0)), False)
sketch2.addGeometry(Part.LineSegment(App.Vector(-9.48903, 16.364688, 0), App.Vector(-14.468319, 12.186569, 0)), False)
sketch2.addGeometry(Part.LineSegment(App.Vector(-14.468319, 12.186569, 0), App.Vector(-15.175385, 13.029218, 0)), False)
sketch2.addGeometry(Part.LineSegment(App.Vector(-15.175385, 13.029218, 0), App.Vector(-10.196097, 17.207337, 0)), False)
sketch2.addGeometry(Part.LineSegment(App.Vector(-15.466453, 12.682337, 0), App.Vector(-14.513825, 12.132337, 0)), False)
sketch2.addGeometry(Part.LineSegment(App.Vector(-14.513825, 12.132337, 0), App.Vector(-17.763825, 6.503172, 0)), False)
sketch2.addGeometry(Part.LineSegment(App.Vector(-17.763825, 6.503172, 0), App.Vector(-18.716453, 7.053172, 0)), False)
sketch2.addGeometry(Part.LineSegment(App.Vector(-18.716453, 7.053172, 0), App.Vector(-15.466453, 12.682337, 0)), False)
sketch2.addGeometry(Part.LineSegment(App.Vector(-18.871326, 6.62766, 0), App.Vector(-17.788038, 6.436647, 0)), False)
sketch2.addGeometry(Part.LineSegment(App.Vector(-17.788038, 6.436647, 0), App.Vector(-18.916751, 0.035397, 0)), False)
sketch2.addGeometry(Part.LineSegment(App.Vector(-18.916751, 0.035397, 0), App.Vector(-20.000039, 0.22641, 0)), False)
sketch2.addGeometry(Part.LineSegment(App.Vector(-20.000039, 0.22641, 0), App.Vector(-18.871326, 6.62766, 0)), False)
sketch2.addGeometry(Part.LineSegment(App.Vector(-20.000039, -0.22641, 0), App.Vector(-18.916751, -0.035397, 0)), False)
sketch2.addGeometry(Part.LineSegment(App.Vector(-18.916751, -0.035397, 0), App.Vector(-17.788038, -6.436647, 0)), False)
sketch2.addGeometry(Part.LineSegment(App.Vector(-17.788038, -6.436647, 0), App.Vector(-18.871326, -6.62766, 0)), False)
sketch2.addGeometry(Part.LineSegment(App.Vector(-18.871326, -6.62766, 0), App.Vector(-20.000039, -0.22641, 0)), False)
sketch2.addGeometry(Part.LineSegment(App.Vector(-18.716453, -7.053172, 0), App.Vector(-17.763825, -6.503172, 0)), False)
sketch2.addGeometry(Part.LineSegment(App.Vector(-17.763825, -6.503172, 0), App.Vector(-14.513825, -12.132337, 0)), False)
sketch2.addGeometry(Part.LineSegment(App.Vector(-14.513825, -12.132337, 0), App.Vector(-15.466453, -12.682337, 0)), False)
sketch2.addGeometry(Part.LineSegment(App.Vector(-15.466453, -12.682337, 0), App.Vector(-18.716453, -7.053172, 0)), False)
sketch2.addGeometry(Part.LineSegment(App.Vector(-15.175385, -13.029218, 0), App.Vector(-14.468319, -12.186569, 0)), False)
sketch2.addGeometry(Part.LineSegment(App.Vector(-14.468319, -12.186569, 0), App.Vector(-9.48903, -16.364688, 0)), False)
sketch2.addGeometry(Part.LineSegment(App.Vector(-9.48903, -16.364688, 0), App.Vector(-10.196097, -17.207337, 0)), False)
sketch2.addGeometry(Part.LineSegment(App.Vector(-10.196097, -17.207337, 0), App.Vector(-15.175385, -13.029218, 0)), False)
sketch2.addGeometry(Part.LineSegment(App.Vector(-9.803943, -17.433747, 0), App.Vector(-9.427721, -16.400085, 0)), False)
sketch2.addGeometry(Part.LineSegment(App.Vector(-9.427721, -16.400085, 0), App.Vector(-3.319719, -18.623216, 0)), False)
sketch2.addGeometry(Part.LineSegment(App.Vector(-3.319719, -18.623216, 0), App.Vector(-3.695941, -19.656878, 0)), False)
sketch2.addGeometry(Part.LineSegment(App.Vector(-3.695941, -19.656878, 0), App.Vector(-9.803943, -17.433747, 0)), False)
sketch2.addConstraint(Sketcher.Constraint("Coincident", 0, 2, 1, 1))
sketch2.addConstraint(Sketcher.Constraint("Coincident", 1, 2, 2, 1))
sketch2.addConstraint(Sketcher.Constraint("Coincident", 2, 2, 3, 1))
sketch2.addConstraint(Sketcher.Constraint("Coincident", 3, 2, 0, 1))
sketch2.addConstraint(Sketcher.Constraint("Coincident", 4, 2, 5, 1))
sketch2.addConstraint(Sketcher.Constraint("Coincident", 5, 2, 6, 1))
sketch2.addConstraint(Sketcher.Constraint("Coincident", 6, 2, 7, 1))
sketch2.addConstraint(Sketcher.Constraint("Coincident", 7, 2, 4, 1))
sketch2.addConstraint(Sketcher.Constraint("Coincident", 8, 2, 9, 1))
sketch2.addConstraint(Sketcher.Constraint("Coincident", 9, 2, 10, 1))
sketch2.addConstraint(Sketcher.Constraint("Coincident", 10, 2, 11, 1))
sketch2.addConstraint(Sketcher.Constraint("Coincident", 11, 2, 8, 1))
sketch2.addConstraint(Sketcher.Constraint("Coincident", 12, 2, 13, 1))
sketch2.addConstraint(Sketcher.Constraint("Coincident", 13, 2, 14, 1))
sketch2.addConstraint(Sketcher.Constraint("Coincident", 14, 2, 15, 1))
sketch2.addConstraint(Sketcher.Constraint("Coincident", 15, 2, 12, 1))
sketch2.addConstraint(Sketcher.Constraint("Coincident", 16, 2, 17, 1))
sketch2.addConstraint(Sketcher.Constraint("Coincident", 17, 2, 18, 1))
sketch2.addConstraint(Sketcher.Constraint("Coincident", 18, 2, 19, 1))
sketch2.addConstraint(Sketcher.Constraint("Coincident", 19, 2, 16, 1))
sketch2.addConstraint(Sketcher.Constraint("Coincident", 20, 2, 21, 1))
sketch2.addConstraint(Sketcher.Constraint("Coincident", 21, 2, 22, 1))
sketch2.addConstraint(Sketcher.Constraint("Coincident", 22, 2, 23, 1))
sketch2.addConstraint(Sketcher.Constraint("Coincident", 23, 2, 20, 1))
sketch2.addConstraint(Sketcher.Constraint("Coincident", 24, 2, 25, 1))
sketch2.addConstraint(Sketcher.Constraint("Coincident", 25, 2, 26, 1))
sketch2.addConstraint(Sketcher.Constraint("Coincident", 26, 2, 27, 1))
sketch2.addConstraint(Sketcher.Constraint("Coincident", 27, 2, 24, 1))
sketch2.addConstraint(Sketcher.Constraint("Coincident", 28, 2, 29, 1))
sketch2.addConstraint(Sketcher.Constraint("Coincident", 29, 2, 30, 1))
sketch2.addConstraint(Sketcher.Constraint("Coincident", 30, 2, 31, 1))
sketch2.addConstraint(Sketcher.Constraint("Coincident", 31, 2, 28, 1))
sketch2.addConstraint(Sketcher.Constraint("Coincident", 32, 2, 33, 1))
sketch2.addConstraint(Sketcher.Constraint("Coincident", 33, 2, 34, 1))
sketch2.addConstraint(Sketcher.Constraint("Coincident", 34, 2, 35, 1))
sketch2.addConstraint(Sketcher.Constraint("Coincident", 35, 2, 32, 1))
sketch2.addConstraint(Sketcher.Constraint("Coincident", 36, 2, 37, 1))
sketch2.addConstraint(Sketcher.Constraint("Coincident", 37, 2, 38, 1))
sketch2.addConstraint(Sketcher.Constraint("Coincident", 38, 2, 39, 1))
sketch2.addConstraint(Sketcher.Constraint("Coincident", 39, 2, 36, 1))
sketch2.addConstraint(Sketcher.Constraint("Coincident", 40, 2, 41, 1))
sketch2.addConstraint(Sketcher.Constraint("Coincident", 41, 2, 42, 1))
sketch2.addConstraint(Sketcher.Constraint("Coincident", 42, 2, 43, 1))
sketch2.addConstraint(Sketcher.Constraint("Coincident", 43, 2, 40, 1))
sketch2.addConstraint(Sketcher.Constraint("Coincident", 44, 2, 45, 1))
sketch2.addConstraint(Sketcher.Constraint("Coincident", 45, 2, 46, 1))
sketch2.addConstraint(Sketcher.Constraint("Coincident", 46, 2, 47, 1))
sketch2.addConstraint(Sketcher.Constraint("Coincident", 47, 2, 44, 1))
sketch2.addConstraint(Sketcher.Constraint("Coincident", 48, 2, 49, 1))
sketch2.addConstraint(Sketcher.Constraint("Coincident", 49, 2, 50, 1))
sketch2.addConstraint(Sketcher.Constraint("Coincident", 50, 2, 51, 1))
sketch2.addConstraint(Sketcher.Constraint("Coincident", 51, 2, 48, 1))
sketch2.addConstraint(Sketcher.Constraint("Coincident", 52, 2, 53, 1))
sketch2.addConstraint(Sketcher.Constraint("Coincident", 53, 2, 54, 1))
sketch2.addConstraint(Sketcher.Constraint("Coincident", 54, 2, 55, 1))
sketch2.addConstraint(Sketcher.Constraint("Coincident", 55, 2, 52, 1))
sketch2.addConstraint(Sketcher.Constraint("Coincident", 56, 2, 57, 1))
sketch2.addConstraint(Sketcher.Constraint("Coincident", 57, 2, 58, 1))
sketch2.addConstraint(Sketcher.Constraint("Coincident", 58, 2, 59, 1))
sketch2.addConstraint(Sketcher.Constraint("Coincident", 59, 2, 56, 1))
sketch2.addConstraint(Sketcher.Constraint("Coincident", 60, 2, 61, 1))
sketch2.addConstraint(Sketcher.Constraint("Coincident", 61, 2, 62, 1))
sketch2.addConstraint(Sketcher.Constraint("Coincident", 62, 2, 63, 1))
sketch2.addConstraint(Sketcher.Constraint("Coincident", 63, 2, 60, 1))
sketch2.addConstraint(Sketcher.Constraint("Coincident", 64, 2, 65, 1))
sketch2.addConstraint(Sketcher.Constraint("Coincident", 65, 2, 66, 1))
sketch2.addConstraint(Sketcher.Constraint("Coincident", 66, 2, 67, 1))
sketch2.addConstraint(Sketcher.Constraint("Coincident", 67, 2, 64, 1))
sketch2.addConstraint(Sketcher.Constraint("Coincident", 68, 2, 69, 1))
sketch2.addConstraint(Sketcher.Constraint("Coincident", 69, 2, 70, 1))
sketch2.addConstraint(Sketcher.Constraint("Coincident", 70, 2, 71, 1))
sketch2.addConstraint(Sketcher.Constraint("Coincident", 71, 2, 68, 1))
sketch2.addConstraint(Sketcher.Constraint("Vertical", 0))
sketch2.addConstraint(Sketcher.Constraint("Horizontal", 1))
sketch2.addConstraint(Sketcher.Constraint("Vertical", 2))
sketch2.addConstraint(Sketcher.Constraint("Horizontal", 3))
sketch2.addConstraint(Sketcher.Constraint("Vertical", 36))
sketch2.addConstraint(Sketcher.Constraint("Horizontal", 37))
sketch2.addConstraint(Sketcher.Constraint("Vertical", 38))
sketch2.addConstraint(Sketcher.Constraint("Horizontal", 39))
sketch2.addConstraint(Sketcher.Constraint("Symmetric", 2, 2, 36, 2, -1, 1))
sketch2.addConstraint(Sketcher.Constraint("Symmetric", 0, 2, 38, 2, -1, 1))
sketch2.addConstraint(Sketcher.Constraint("Symmetric", 4, 2, 40, 2, -1, 1))
sketch2.addConstraint(Sketcher.Constraint("Symmetric", 5, 2, 41, 2, -1, 1))
sketch2.addConstraint(Sketcher.Constraint("Symmetric", 6, 2, 42, 2, -1, 1))
sketch2.addConstraint(Sketcher.Constraint("Symmetric", 7, 2, 43, 2, -1, 1))
sketch2.addConstraint(Sketcher.Constraint("Symmetric", 8, 2, 44, 2, -1, 1))
sketch2.addConstraint(Sketcher.Constraint("Symmetric", 9, 2, 45, 2, -1, 1))
sketch2.addConstraint(Sketcher.Constraint("Symmetric", 10, 2, 46, 2, -1, 1))
sketch2.addConstraint(Sketcher.Constraint("Symmetric", 11, 2, 47, 2, -1, 1))
sketch2.addConstraint(Sketcher.Constraint("Symmetric", 12, 2, 48, 2, -1, 1))
sketch2.addConstraint(Sketcher.Constraint("Symmetric", 13, 2, 49, 2, -1, 1))
sketch2.addConstraint(Sketcher.Constraint("Symmetric", 14, 2, 50, 2, -1, 1))
sketch2.addConstraint(Sketcher.Constraint("Symmetric", 15, 2, 51, 2, -1, 1))
sketch2.addConstraint(Sketcher.Constraint("Symmetric", 16, 2, 52, 2, -1, 1))
sketch2.addConstraint(Sketcher.Constraint("Symmetric", 17, 2, 53, 2, -1, 1))
sketch2.addConstraint(Sketcher.Constraint("Symmetric", 18, 2, 54, 2, -1, 1))
sketch2.addConstraint(Sketcher.Constraint("Symmetric", 19, 2, 55, 2, -1, 1))
sketch2.addConstraint(Sketcher.Constraint("Symmetric", 20, 2, 56, 2, -1, 1))
sketch2.addConstraint(Sketcher.Constraint("Symmetric", 21, 2, 57, 2, -1, 1))
sketch2.addConstraint(Sketcher.Constraint("Symmetric", 22, 2, 58, 2, -1, 1))
sketch2.addConstraint(Sketcher.Constraint("Symmetric", 23, 2, 59, 2, -1, 1))
sketch2.addConstraint(Sketcher.Constraint("Symmetric", 24, 2, 60, 2, -1, 1))
sketch2.addConstraint(Sketcher.Constraint("Symmetric", 25, 2, 61, 2, -1, 1))
sketch2.addConstraint(Sketcher.Constraint("Symmetric", 26, 2, 62, 2, -1, 1))
sketch2.addConstraint(Sketcher.Constraint("Symmetric", 27, 2, 63, 2, -1, 1))
sketch2.addConstraint(Sketcher.Constraint("Symmetric", 28, 2, 64, 2, -1, 1))
sketch2.addConstraint(Sketcher.Constraint("Symmetric", 29, 2, 65, 2, -1, 1))
sketch2.addConstraint(Sketcher.Constraint("Symmetric", 30, 2, 66, 2, -1, 1))
sketch2.addConstraint(Sketcher.Constraint("Symmetric", 31, 2, 67, 2, -1, 1))
sketch2.addConstraint(Sketcher.Constraint("Symmetric", 32, 2, 68, 2, -1, 1))
sketch2.addConstraint(Sketcher.Constraint("Symmetric", 33, 2, 69, 2, -1, 1))
sketch2.addConstraint(Sketcher.Constraint("Symmetric", 34, 2, 70, 2, -1, 1))
sketch2.addConstraint(Sketcher.Constraint("Symmetric", 35, 2, 71, 2, -1, 1))
sketch2.addConstraint(Sketcher.Constraint("Symmetric", 33, 2, 40, 2, -2))
sketch2.addConstraint(Sketcher.Constraint("Symmetric", 32, 2, 41, 2, -2))
sketch2.addConstraint(Sketcher.Constraint("Symmetric", 35, 2, 42, 2, -2))
sketch2.addConstraint(Sketcher.Constraint("Symmetric", 34, 2, 43, 2, -2))
sketch2.addConstraint(Sketcher.Constraint("Symmetric", 29, 2, 44, 2, -2))
sketch2.addConstraint(Sketcher.Constraint("Symmetric", 28, 2, 45, 2, -2))
sketch2.addConstraint(Sketcher.Constraint("Symmetric", 31, 2, 46, 2, -2))
sketch2.addConstraint(Sketcher.Constraint("Symmetric", 30, 2, 47, 2, -2))
sketch2.addConstraint(Sketcher.Constraint("Symmetric", 25, 2, 48, 2, -2))
sketch2.addConstraint(Sketcher.Constraint("Symmetric", 24, 2, 49, 2, -2))
sketch2.addConstraint(Sketcher.Constraint("Symmetric", 27, 2, 50, 2, -2))
sketch2.addConstraint(Sketcher.Constraint("Symmetric", 26, 2, 51, 2, -2))
sketch2.addConstraint(Sketcher.Constraint("Symmetric", 21, 2, 52, 2, -2))
sketch2.addConstraint(Sketcher.Constraint("Symmetric", 20, 2, 53, 2, -2))
sketch2.addConstraint(Sketcher.Constraint("Symmetric", 23, 2, 54, 2, -2))
sketch2.addConstraint(Sketcher.Constraint("Symmetric", 22, 2, 55, 2, -2))
sketch2.addConstraint(Sketcher.Constraint("Perpendicular", 4, 5))
sketch2.addConstraint(Sketcher.Constraint("Perpendicular", 5, 6))
sketch2.addConstraint(Sketcher.Constraint("Perpendicular", 6, 7))
sketch2.addConstraint(Sketcher.Constraint("Perpendicular", 8, 9))
sketch2.addConstraint(Sketcher.Constraint("Perpendicular", 9, 10))
sketch2.addConstraint(Sketcher.Constraint("Perpendicular", 10, 11))
sketch2.addConstraint(Sketcher.Constraint("Perpendicular", 12, 13))
sketch2.addConstraint(Sketcher.Constraint("Perpendicular", 13, 14))
sketch2.addConstraint(Sketcher.Constraint("Perpendicular", 14, 15))
sketch2.addConstraint(Sketcher.Constraint("Perpendicular", 16, 17))
sketch2.addConstraint(Sketcher.Constraint("Perpendicular", 17, 18))
sketch2.addConstraint(Sketcher.Constraint("Perpendicular", 18, 19))
sketch2.addConstraint(Sketcher.Constraint("Vertical", 3, 2, 36, 2))
sketch2.addConstraint(Sketcher.Constraint("Equal", 6, 8))
sketch2.addConstraint(Sketcher.Constraint("Equal", 7, 9))
sketch2.addConstraint(Sketcher.Constraint("Equal", 10, 12))
sketch2.addConstraint(Sketcher.Constraint("Equal", 11, 13))
sketch2.addConstraint(Sketcher.Constraint("Equal", 14, 16))
sketch2.addConstraint(Sketcher.Constraint("Equal", 15, 17))
sketch2.addConstraint(Sketcher.Constraint("Angle", 4, Q("110 deg")))
sketch2.addConstraint(Sketcher.Constraint("Angle", 8, Q("130 deg")))
sketch2.addConstraint(Sketcher.Constraint("Angle", 12, Q("150 deg")))
sketch2.addConstraint(Sketcher.Constraint("Angle", 16, Q("170 deg")))
sketch2.addConstraint(Sketcher.Constraint("DistanceX", 1, 1, 1, 2, Q("6.5 mm")))
sketch2.addConstraint(Sketcher.Constraint("DistanceY", 0, 1, 0, 2, Q("1.1 mm")))
sketch2.addConstraint(Sketcher.Constraint("Distance", 4, Q("1.1 mm")))
sketch2.addConstraint(Sketcher.Constraint("Distance", 5, Q("6.5 mm")))
sketch2.addConstraint(Sketcher.Constraint("DistanceY", 0, 2, -1, 1, Q("18.63551 mm")))
sketch2.addConstraint(Sketcher.Constraint("DistanceX", -1, 1, 4, 2, Q("3.319719 mm")))
sketch2.addConstraint(Sketcher.Constraint("DistanceY", 7, 2, -1, 1, Q("19.656878 mm")))
sketch2.addConstraint(Sketcher.Constraint("DistanceX", -1, 1, 8, 2, Q("9.48903 mm")))
sketch2.addConstraint(Sketcher.Constraint("DistanceY", 8, 2, -1, 1, Q("16.364688 mm")))
sketch2.addConstraint(Sketcher.Constraint("DistanceX", -1, 1, 17, 2, Q("18.916751 mm")))
sketch2.addConstraint(Sketcher.Constraint("DistanceY", 18, 2, -1, 1, Q("0.22641 mm")))
sketch2.addConstraint(Sketcher.Constraint("DistanceX", -1, 1, 12, 2, Q("14.513825 mm")))
sketch2.addConstraint(Sketcher.Constraint("DistanceY", 12, 2, -1, 1, Q("12.132337 mm")))
pocket1 = body.newObject("PartDesign::Pocket", "Pocket")
pocket1.Profile = sketch2
pocket1.Length = 0.6
pocket1.Reversed = True
doc.recompute()

chamfer2 = body.newObject("PartDesign::Chamfer", "Chamfer001")
chamfer2.Base = (pocket1, edges_at(pocket1, [
    (3.848, 0, -21.822),
    (11.079, 0, -19.19),
    (16.974, 0, -14.243),
    (20.822, 0, -7.579),
    (22.158, 0, 0),
    (20.822, 0, 7.579),
    (16.974, 0, 14.243),
    (11.079, 0, 19.19),
    (3.848, 0, 21.822),
    (-3.848, 0, 21.822),
    (-11.079, 0, 19.19),
    (-16.974, 0, 14.243),
    (-20.822, 0, 7.579),
    (-22.158, 0, 0),
    (-20.822, 0, -7.579),
    (-16.974, 0, -14.243),
    (-11.079, 0, -19.19),
    (-3.848, 0, -21.822),
]))
chamfer2.Size = 0.5

# Sketch on XZ plane
sketch3 = body.newObject("Sketcher::SketchObject", "Sketch002")
sketch3.AttachmentSupport = (doc.getObject("XZ_Plane"), [""])
sketch3.MapMode = "FlatFace"
sketch3.addGeometry(Part.Circle(App.Vector(-5.656854, 5.656854, 0), App.Vector(0, 0, 1), 1.5), False)
sketch3.addGeometry(Part.Circle(App.Vector(5.656854, 5.656854, 0), App.Vector(0, 0, 1), 1.5), False)
sketch3.addGeometry(Part.Circle(App.Vector(5.656854, -5.656854, 0), App.Vector(0, 0, 1), 1.5), False)
sketch3.addGeometry(Part.Circle(App.Vector(-5.656854, -5.656854, 0), App.Vector(0, 0, 1), 1.5), False)
sketch3.addConstraint(Sketcher.Constraint("Equal", 0, 1))
sketch3.addConstraint(Sketcher.Constraint("Equal", 1, 2))
sketch3.addConstraint(Sketcher.Constraint("Equal", 2, 3))
sketch3.addConstraint(Sketcher.Constraint("Symmetric", 0, 3, 2, 3, -1, 1))
sketch3.addConstraint(Sketcher.Constraint("Symmetric", 1, 3, 3, 3, -1, 1))
sketch3.addConstraint(Sketcher.Constraint("Symmetric", 0, 3, 1, 3, -2))
sketch3.addConstraint(Sketcher.Constraint("Diameter", 0, Q("3 mm")))
sketch3.addConstraint(Sketcher.Constraint("DistanceX", 0, 3, 1, 3, Q("11.313708 mm")))
sketch3.addConstraint(Sketcher.Constraint("DistanceY", 2, 3, 1, 3, Q("11.313708 mm")))
pocket2 = body.newObject("PartDesign::Pocket", "Pocket001")
pocket2.Profile = sketch3
pocket2.Length = 3

# Sketch on XZ plane
sketch4 = body.newObject("Sketcher::SketchObject", "Sketch003")
sketch4.AttachmentSupport = (doc.getObject("XZ_Plane"), [""])
sketch4.MapMode = "FlatFace"
sketch4.addGeometry(Part.Circle(App.Vector(0, 0, 0), App.Vector(0, 0, 1), 5), False)
sketch4.addConstraint(Sketcher.Constraint("Coincident", 0, 3, -1, 1))
sketch4.addConstraint(Sketcher.Constraint("Diameter", 0, Q("10 mm")))
pocket3 = body.newObject("PartDesign::Pocket", "Pocket002")
pocket3.Profile = sketch4
pocket3.Length = 3

# Sketch on XZ plane
sketch5 = body.newObject("Sketcher::SketchObject", "Sketch004")
sketch5.AttachmentSupport = (doc.getObject("XZ_Plane"), [""])
sketch5.MapMode = "FlatFace"
sketch5.addGeometry(Part.Circle(App.Vector(0, 0, 0), App.Vector(0, 0, 1), 11), False)
sketch5.addConstraint(Sketcher.Constraint("Coincident", 0, 3, -1, 1))
sketch5.addConstraint(Sketcher.Constraint("Diameter", 0, Q("22 mm")))
pocket4 = body.newObject("PartDesign::Pocket", "Pocket003")
pocket4.Profile = sketch5
pocket4.Length = 0.9

doc.recompute()
